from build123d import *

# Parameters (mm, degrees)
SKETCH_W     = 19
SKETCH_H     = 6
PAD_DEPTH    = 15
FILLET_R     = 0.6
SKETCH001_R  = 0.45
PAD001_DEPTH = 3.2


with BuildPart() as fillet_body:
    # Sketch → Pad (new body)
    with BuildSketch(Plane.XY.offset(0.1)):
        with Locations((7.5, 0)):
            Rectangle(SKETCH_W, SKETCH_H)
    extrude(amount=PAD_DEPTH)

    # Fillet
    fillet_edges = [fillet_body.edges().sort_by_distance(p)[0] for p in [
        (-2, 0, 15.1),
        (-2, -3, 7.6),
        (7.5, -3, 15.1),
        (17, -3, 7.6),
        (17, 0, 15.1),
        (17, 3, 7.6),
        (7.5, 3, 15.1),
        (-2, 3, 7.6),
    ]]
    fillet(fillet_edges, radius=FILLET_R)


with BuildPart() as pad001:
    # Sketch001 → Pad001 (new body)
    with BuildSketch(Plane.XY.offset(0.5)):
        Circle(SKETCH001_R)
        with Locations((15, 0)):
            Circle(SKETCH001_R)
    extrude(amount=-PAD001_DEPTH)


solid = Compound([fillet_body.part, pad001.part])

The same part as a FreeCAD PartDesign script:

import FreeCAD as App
import Part
import Sketcher


def edges_at(feature, points):
    """Names of the edges that pass closest to the given points."""
    edges = feature.Shape.Edges
    near = lambda p: min(range(len(edges)), key=lambda i: edges[i].distToShape(Part.Vertex(*p))[0])
    return sorted({f"Edge{near(p) + 1}" for p in points})


def add_polygon(sketch, points):
    """Adds a closed chain of lines whose ends are joined by coincident constraints."""
    first, n = sketch.GeometryCount, len(points)
    for a, b in zip(points, points[1:] + points[:1]):
        sketch.addGeometry(Part.LineSegment(App.Vector(*a, 0), App.Vector(*b, 0)), False)
    for i in range(n):
        sketch.addConstraint(Sketcher.Constraint("Coincident", first + i, 2, first + (i + 1) % n, 1))

doc = App.newDocument("Part")
params = doc.addObject("Spreadsheet::Sheet", "Params")
for row, (alias, value) in enumerate([
    ("sketch1_width", "19 mm"),
    ("sketch1_height", "6 mm"),
    ("pad1_length", "15 mm"),
    ("fillet_radius", "0.6 mm"),
    ("sketch2_diameter", "0.9 mm"),
    ("pad2_length", "3.2 mm"),
], start=1):
    params.set(f"A{row}", alias)
    params.set(f"B{row}", "=" + value)
    params.setAlias(f"B{row}", alias)

body = doc.addObject("PartDesign::Body", "Body")

sketch1 = body.newObject("Sketcher::SketchObject", "Sketch")
sketch1.AttachmentSupport = (doc.getObject("XY_Plane"), [""])
sketch1.MapMode = "FlatFace"
sketch1.AttachmentOffset = App.Placement(App.Vector(0, 0, 0.1), App.Rotation())
add_polygon(sketch1, [(-2, 3), (-2, -3), (17, -3), (17, 3)])
sketch1.addConstraint(Sketcher.Constraint("Vertical", 0))
sketch1.addConstraint(Sketcher.Constraint("Horizontal", 1))
sketch1.addConstraint(Sketcher.Constraint("Vertical", 2))
sketch1.addConstraint(Sketcher.Constraint("Horizontal", 3))
sketch1.addConstraint(Sketcher.Constraint("DistanceX", 1, 1, 1, 2, 19.0))
sketch1.addConstraint(Sketcher.Constraint("DistanceY", 0, 2, 0, 1, 6.0))
sketch1.addConstraint(Sketcher.Constraint("DistanceX", 0, 2, -1, 1, 2.0))
sketch1.addConstraint(Sketcher.Constraint("DistanceY", 0, 2, -1, 1, 3.0))
sketch1.setExpression("Constraints[8]", "Params.sketch1_width")
sketch1.setExpression("Constraints[9]", "Params.sketch1_height")
pad1 = body.newObject("PartDesign::Pad", "Pad")
pad1.Profile = sketch1
pad1.setExpression("Length", "Params.pad1_length")
doc.recompute()

fillet = body.newObject("PartDesign::Fillet", "Fillet")
fillet.Base = (pad1, edges_at(pad1, [
    (-2, 0, 15.1),
    (-2, -3, 7.6),
    (7.5, -3, 15.1),
    (17, -3, 7.6),
    (17, 0, 15.1),
    (17, 3, 7.6),
    (7.5, 3, 15.1),
    (-2, 3, 7.6),
]))
fillet.setExpression("Radius", "Params.fillet_radius")
body2 = doc.addObject("PartDesign::Body", "Body001")
body2.AllowCompound = True

sketch2 = body2.newObject("Sketcher::SketchObject", "Sketch001")
sketch2.AttachmentSupport = (doc.getObject("XY_Plane001"), [""])
sketch2.MapMode = "FlatFace"
sketch2.AttachmentOffset = App.Placement(App.Vector(0, 0, 0.5), App.Rotation())
sketch2.addGeometry(Part.Circle(App.Vector(0, 0, 0), App.Vector(0, 0, 1), 0.45), False)
sketch2.addGeometry(Part.Circle(App.Vector(15, 0, 0), App.Vector(0, 0, 1), 0.45), False)
sketch2.addConstraint(Sketcher.Constraint("Coincident", 0, 3, -1, 1))
sketch2.addConstraint(Sketcher.Constraint("Equal", 0, 1))
sketch2.addConstraint(Sketcher.Constraint("PointOnObject", 1, 3, -1))
sketch2.addConstraint(Sketcher.Constraint("Diameter", 0, 0.9))
sketch2.addConstraint(Sketcher.Constraint("DistanceX", -1, 1, 1, 3, 15.0))
sketch2.setExpression("Constraints[3]", "Params.sketch2_diameter")
pad2 = body2.newObject("PartDesign::Pad", "Pad001")
pad2.Profile = sketch2
pad2.setExpression("Length", "Params.pad2_length")
pad2.Reversed = True

doc.recompute()
